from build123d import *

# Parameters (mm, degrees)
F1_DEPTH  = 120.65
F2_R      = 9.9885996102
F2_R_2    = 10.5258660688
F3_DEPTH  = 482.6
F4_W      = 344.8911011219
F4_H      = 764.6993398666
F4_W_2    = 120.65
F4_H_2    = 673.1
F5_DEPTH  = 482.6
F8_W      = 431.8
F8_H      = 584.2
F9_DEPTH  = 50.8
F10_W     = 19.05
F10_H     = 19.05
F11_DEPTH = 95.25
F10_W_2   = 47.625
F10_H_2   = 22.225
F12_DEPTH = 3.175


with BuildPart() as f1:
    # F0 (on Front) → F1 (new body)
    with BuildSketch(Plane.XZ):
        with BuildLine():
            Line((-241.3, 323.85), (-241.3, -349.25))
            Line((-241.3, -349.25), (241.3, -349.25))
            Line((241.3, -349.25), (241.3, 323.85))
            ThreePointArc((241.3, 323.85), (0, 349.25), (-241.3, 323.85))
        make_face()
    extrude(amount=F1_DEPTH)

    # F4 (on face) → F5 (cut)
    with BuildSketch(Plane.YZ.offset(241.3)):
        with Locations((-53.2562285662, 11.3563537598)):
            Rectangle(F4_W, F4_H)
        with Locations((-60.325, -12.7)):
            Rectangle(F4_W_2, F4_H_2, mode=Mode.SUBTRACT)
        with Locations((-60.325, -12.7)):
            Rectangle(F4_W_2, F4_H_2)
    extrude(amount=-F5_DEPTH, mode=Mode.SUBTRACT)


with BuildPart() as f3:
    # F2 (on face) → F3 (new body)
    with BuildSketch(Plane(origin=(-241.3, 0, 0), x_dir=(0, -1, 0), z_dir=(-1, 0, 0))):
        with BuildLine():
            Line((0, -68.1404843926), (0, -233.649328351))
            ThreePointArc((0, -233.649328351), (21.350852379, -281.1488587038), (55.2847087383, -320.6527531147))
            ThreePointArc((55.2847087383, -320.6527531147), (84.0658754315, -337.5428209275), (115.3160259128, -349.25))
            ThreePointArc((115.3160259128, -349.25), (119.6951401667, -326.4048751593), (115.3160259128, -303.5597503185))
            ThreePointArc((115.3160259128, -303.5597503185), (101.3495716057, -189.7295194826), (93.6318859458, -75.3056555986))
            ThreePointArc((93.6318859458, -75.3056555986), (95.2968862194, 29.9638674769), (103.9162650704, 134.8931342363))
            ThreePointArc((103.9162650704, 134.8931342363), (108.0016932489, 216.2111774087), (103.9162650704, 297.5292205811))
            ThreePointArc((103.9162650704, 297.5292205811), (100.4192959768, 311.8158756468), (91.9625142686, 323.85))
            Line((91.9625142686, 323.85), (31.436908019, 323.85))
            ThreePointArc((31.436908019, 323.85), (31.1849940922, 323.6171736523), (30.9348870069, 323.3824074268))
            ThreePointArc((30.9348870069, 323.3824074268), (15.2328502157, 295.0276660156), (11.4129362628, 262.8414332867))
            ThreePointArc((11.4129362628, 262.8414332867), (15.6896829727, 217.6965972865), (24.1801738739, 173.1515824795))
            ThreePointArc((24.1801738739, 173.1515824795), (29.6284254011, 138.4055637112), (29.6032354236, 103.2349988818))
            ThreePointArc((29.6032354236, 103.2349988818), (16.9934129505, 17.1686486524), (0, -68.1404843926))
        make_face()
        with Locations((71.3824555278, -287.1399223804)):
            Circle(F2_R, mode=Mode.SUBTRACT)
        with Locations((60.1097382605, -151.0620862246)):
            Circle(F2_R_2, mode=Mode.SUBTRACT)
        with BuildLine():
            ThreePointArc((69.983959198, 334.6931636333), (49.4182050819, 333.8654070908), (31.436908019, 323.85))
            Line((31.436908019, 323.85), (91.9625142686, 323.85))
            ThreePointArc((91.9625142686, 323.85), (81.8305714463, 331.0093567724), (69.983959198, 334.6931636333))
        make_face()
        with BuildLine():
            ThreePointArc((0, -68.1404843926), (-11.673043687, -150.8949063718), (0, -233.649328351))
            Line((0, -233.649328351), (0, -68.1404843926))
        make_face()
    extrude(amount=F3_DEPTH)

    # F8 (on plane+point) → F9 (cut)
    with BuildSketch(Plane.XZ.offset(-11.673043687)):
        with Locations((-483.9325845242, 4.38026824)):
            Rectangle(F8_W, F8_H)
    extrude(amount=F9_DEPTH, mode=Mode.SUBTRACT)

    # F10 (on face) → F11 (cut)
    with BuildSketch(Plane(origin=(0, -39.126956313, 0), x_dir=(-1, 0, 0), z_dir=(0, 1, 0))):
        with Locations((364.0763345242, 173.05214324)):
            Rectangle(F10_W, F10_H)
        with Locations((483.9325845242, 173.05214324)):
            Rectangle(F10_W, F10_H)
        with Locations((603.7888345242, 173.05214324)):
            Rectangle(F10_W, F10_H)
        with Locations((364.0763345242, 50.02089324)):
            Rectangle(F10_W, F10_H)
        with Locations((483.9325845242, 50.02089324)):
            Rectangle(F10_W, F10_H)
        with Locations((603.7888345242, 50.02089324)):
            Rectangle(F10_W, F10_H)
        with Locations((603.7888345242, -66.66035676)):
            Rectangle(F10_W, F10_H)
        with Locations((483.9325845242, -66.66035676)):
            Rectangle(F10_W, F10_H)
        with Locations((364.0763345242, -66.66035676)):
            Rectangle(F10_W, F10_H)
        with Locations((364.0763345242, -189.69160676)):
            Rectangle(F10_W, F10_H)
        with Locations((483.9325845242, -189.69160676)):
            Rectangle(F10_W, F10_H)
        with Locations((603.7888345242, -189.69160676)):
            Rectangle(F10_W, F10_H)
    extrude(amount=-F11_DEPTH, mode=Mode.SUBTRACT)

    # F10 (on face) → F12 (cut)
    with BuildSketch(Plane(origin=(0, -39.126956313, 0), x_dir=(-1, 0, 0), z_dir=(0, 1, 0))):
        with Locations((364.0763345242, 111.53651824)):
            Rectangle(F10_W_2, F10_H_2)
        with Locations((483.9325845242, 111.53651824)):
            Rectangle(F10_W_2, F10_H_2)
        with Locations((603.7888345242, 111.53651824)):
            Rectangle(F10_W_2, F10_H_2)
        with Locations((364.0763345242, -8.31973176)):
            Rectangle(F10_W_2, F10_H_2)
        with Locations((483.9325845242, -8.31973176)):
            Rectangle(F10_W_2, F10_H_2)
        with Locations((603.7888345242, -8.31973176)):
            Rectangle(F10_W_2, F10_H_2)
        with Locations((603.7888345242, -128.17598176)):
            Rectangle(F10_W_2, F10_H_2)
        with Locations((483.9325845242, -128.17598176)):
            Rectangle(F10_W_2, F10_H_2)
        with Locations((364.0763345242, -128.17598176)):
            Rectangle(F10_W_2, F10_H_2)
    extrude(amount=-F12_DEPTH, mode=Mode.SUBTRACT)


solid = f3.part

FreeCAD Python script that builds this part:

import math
import FreeCAD as App
import Part
import Sketcher
Q = App.Units.Quantity

doc = App.newDocument("Part")
body = doc.addObject("PartDesign::Body", "Body")

# Sketch on XZ plane
sketch1 = doc.addObject("Sketcher::SketchObject", "Sketch")
body.addObject(sketch1)
sketch1.AttachmentSupport = (doc.XZ_Plane, [""])
sketch1.MapMode = "FlatFace"
sketch1.addGeometry(Part.LineSegment(App.Vector(-241.3, 323.85, 0), App.Vector(-241.3, -349.25, 0)), False)
sketch1.addGeometry(Part.LineSegment(App.Vector(-241.3, -349.25, 0), App.Vector(241.3, -349.25, 0)), False)
sketch1.addGeometry(Part.LineSegment(App.Vector(241.3, -349.25, 0), App.Vector(241.3, 323.85, 0)), False)
sketch1.addGeometry(Part.ArcOfCircle(Part.Circle(App.Vector(0, -809.625, 0), App.Vector(0, 0, 1), 1158.875), math.radians(77.981988), math.radians(102.018012)), False)
sketch1.addConstraint(Sketcher.Constraint("Coincident", 0, 2, 1, 1))
sketch1.addConstraint(Sketcher.Constraint("Coincident", 1, 2, 2, 1))
sketch1.addConstraint(Sketcher.Constraint("Coincident", 2, 2, 3, 1))
sketch1.addConstraint(Sketcher.Constraint("Coincident", 3, 2, 0, 1))
sketch1.addConstraint(Sketcher.Constraint("Vertical", 0))
sketch1.addConstraint(Sketcher.Constraint("Horizontal", 1))
sketch1.addConstraint(Sketcher.Constraint("Vertical", 2))
sketch1.addConstraint(Sketcher.Constraint("PointOnObject", 3, 3, -2))
sketch1.addConstraint(Sketcher.Constraint("Equal", 0, 2))
sketch1.addConstraint(Sketcher.Constraint("DistanceX", 1, 1, 1, 2, Q("19 in")))
sketch1.addConstraint(Sketcher.Constraint("DistanceY", 0, 2, 0, 1, Q("26.5 in")))
sketch1.addConstraint(Sketcher.Constraint("Radius", 3, Q("45.625 in")))
sketch1.addConstraint(Sketcher.Constraint("DistanceY", 0, 2, -1, 1, Q("13.75 in")))
pad1 = doc.addObject("PartDesign::Pad", "Pad")
body.addObject(pad1)
pad1.Profile = sketch1
pad1.Length = Q("4.75 in")

# Sketch on YZ plane
sketch2 = doc.addObject("Sketcher::SketchObject", "Sketch001")
body.addObject(sketch2)
sketch2.AttachmentSupport = (doc.YZ_Plane, [""])
sketch2.MapMode = "FlatFace"
sketch2.AttachmentOffset = App.Placement(App.Vector(0, 0, 9.5 * 25.4), App.Rotation())
sketch2.addGeometry(Part.LineSegment(App.Vector(-225.701779, 393.706024, 0), App.Vector(-225.701779, -370.993316, 0)), False)
sketch2.addGeometry(Part.LineSegment(App.Vector(-225.701779, -370.993316, 0), App.Vector(119.189322, -370.993316, 0)), False)
sketch2.addGeometry(Part.LineSegment(App.Vector(119.189322, -370.993316, 0), App.Vector(119.189322, 393.706024, 0)), False)
sketch2.addGeometry(Part.LineSegment(App.Vector(119.189322, 393.706024, 0), App.Vector(-225.701779, 393.706024, 0)), False)
sketch2.addConstraint(Sketcher.Constraint("Coincident", 0, 2, 1, 1))
sketch2.addConstraint(Sketcher.Constraint("Coincident", 1, 2, 2, 1))
sketch2.addConstraint(Sketcher.Constraint("Coincident", 2, 2, 3, 1))
sketch2.addConstraint(Sketcher.Constraint("Coincident", 3, 2, 0, 1))
sketch2.addConstraint(Sketcher.Constraint("Vertical", 0))
sketch2.addConstraint(Sketcher.Constraint("Horizontal", 1))
sketch2.addConstraint(Sketcher.Constraint("Vertical", 2))
sketch2.addConstraint(Sketcher.Constraint("Horizontal", 3))
sketch2.addConstraint(Sketcher.Constraint("DistanceX", 1, 1, 1, 2, Q("344.891101 mm")))
sketch2.addConstraint(Sketcher.Constraint("DistanceY", 0, 2, 0, 1, Q("764.69934 mm")))
sketch2.addConstraint(Sketcher.Constraint("DistanceX", 0, 2, -1, 1, Q("225.701779 mm")))
sketch2.addConstraint(Sketcher.Constraint("DistanceY", 0, 2, -1, 1, Q("370.993316 mm")))
pocket1 = doc.addObject("PartDesign::Pocket", "Pocket")
body.addObject(pocket1)
pocket1.Profile = sketch2
pocket1.Length = Q("19 in")
body2 = doc.addObject("PartDesign::Body", "Body001")

# Sketch on YZ plane
sketch3 = doc.addObject("Sketcher::SketchObject", "Sketch002")
body2.addObject(sketch3)
sketch3.AttachmentSupport = (doc.getObject("YZ_Plane001"), [""])
sketch3.MapMode = "FlatFace"
sketch3.AttachmentOffset = App.Placement(App.Vector(0, 0, -9.5 * 25.4), App.Rotation())
sketch3.addGeometry(Part.ArcOfCircle(Part.Circle(App.Vector(1659.073973, 306.69091, 0), App.Vector(0, 0, 1), 1700.88948), math.radians(-173.12998), math.radians(-167.269014)), False)
sketch3.addGeometry(Part.ArcOfCircle(Part.Circle(App.Vector(-287.501469, -150.894906, 0), App.Vector(0, 0, 1), 299.174512), math.radians(-16.057935), math.radians(16.057935)), False)
sketch3.addGeometry(Part.ArcOfCircle(Part.Circle(App.Vector(-174.889863, -183.585349, 0), App.Vector(0, 0, 1), 181.914447), math.radians(-48.892017), math.radians(-15.974301)), False)
sketch3.addGeometry(Part.ArcOfCircle(Part.Circle(App.Vector(-167.490726, -162.417444, 0), App.Vector(0, 0, 1), 193.980935), math.radians(-74.397123), math.radians(-54.659219)), False)
sketch3.addGeometry(Part.ArcOfCircle(Part.Circle(App.Vector(-57.915938, -326.404875, 0), App.Vector(0, 0, 1), 61.779202), math.radians(158.297539), math.radians(201.702461)), False)
sketch3.addGeometry(Part.ArcOfCircle(Part.Circle(App.Vector(-2187.319697, 8.437651, 0), App.Vector(0, 0, 1), 2095.361923), math.radians(-8.56313), math.radians(-2.290495)), False)
sketch3.addGeometry(Part.ArcOfCircle(Part.Circle(App.Vector(-1685.370469, -47.833534, 0), App.Vector(0, 0, 1), 1591.975638), math.radians(-0.988781), math.radians(6.590925)), False)
sketch3.addGeometry(Part.ArcOfCircle(Part.Circle(App.Vector(703.334913, 216.211177, 0), App.Vector(0, 0, 1), 811.336606), math.radians(174.247743), math.radians(185.752257)), False)
sketch3.addGeometry(Part.ArcOfCircle(Part.Circle(App.Vector(-64.259504, 295.393674, 0), App.Vector(0, 0, 1), 39.71422), math.radians(98.287551), math.radians(176.917556)), False)
sketch3.addGeometry(Part.ArcOfCircle(Part.Circle(App.Vector(-61.43752, 291.13718, 0), App.Vector(0, 0, 1), 44.386544), math.radians(47.476364), math.radians(101.101387)), False)
sketch3.addGeometry(Part.ArcOfCircle(Part.Circle(App.Vector(-61.437519, 291.137181, 0), App.Vector(0, 0, 1), 44.386543), math.radians(46.590774), math.radians(47.476364)), False)
sketch3.addGeometry(Part.ArcOfCircle(Part.Circle(App.Vector(-95.319432, 269.203068, 0), App.Vector(0, 0, 1), 84.147313), math.radians(-4.335765), math.radians(40.080478)), False)
sketch3.addGeometry(Part.ArcOfCircle(Part.Circle(App.Vector(-494.006864, 285.784447, 0), App.Vector(0, 0, 1), 483.138988), math.radians(-13.481256), math.radians(-2.721851)), False)
sketch3.addGeometry(Part.ArcOfCircle(Part.Circle(App.Vector(195.014846, 120.981167, 0), App.Vector(0, 0, 1), 225.318018), math.radians(166.612171), math.radians(184.517325)), False)
sketch3.addGeometry(Part.Circle(App.Vector(-71.382456, -287.139922, 0), App.Vector(0, 0, 1), 9.9886), False)
sketch3.addGeometry(Part.Circle(App.Vector(-60.109738, -151.062086, 0), App.Vector(0, 0, 1), 10.525866), False)
sketch3.addConstraint(Sketcher.Constraint("Coincident", 0, 2, 1, 2))
sketch3.addConstraint(Sketcher.Constraint("Coincident", 1, 1, 2, 2))
sketch3.addConstraint(Sketcher.Constraint("Coincident", 2, 1, 3, 2))
sketch3.addConstraint(Sketcher.Constraint("Coincident", 3, 1, 4, 2))
sketch3.addConstraint(Sketcher.Constraint("Coincident", 4, 1, 5, 1))
sketch3.addConstraint(Sketcher.Constraint("Coincident", 5, 2, 6, 1))
sketch3.addConstraint(Sketcher.Constraint("Coincident", 6, 2, 7, 2))
sketch3.addConstraint(Sketcher.Constraint("Coincident", 7, 1, 8, 2))
sketch3.addConstraint(Sketcher.Constraint("Coincident", 8, 1, 9, 2))
sketch3.addConstraint(Sketcher.Constraint("Tangent", 9, 1, 10, 2))
sketch3.addConstraint(Sketcher.Constraint("Coincident", 10, 1, 11, 2))
sketch3.addConstraint(Sketcher.Constraint("Coincident", 11, 1, 12, 2))
sketch3.addConstraint(Sketcher.Constraint("Coincident", 12, 1, 13, 1))
sketch3.addConstraint(Sketcher.Constraint("Coincident", 13, 2, 0, 1))
sketch3.addConstraint(Sketcher.Constraint("Equal", 9, 10))
sketch3.addConstraint(Sketcher.Constraint("PointOnObject", 0, 2, -2))
sketch3.addConstraint(Sketcher.Constraint("PointOnObject", 1, 1, -2))
sketch3.addConstraint(Sketcher.Constraint("Vertical", 3, 1, 4, 1))
sketch3.addConstraint(Sketcher.Constraint("Vertical", 6, 2, 7, 1))
sketch3.addConstraint(Sketcher.Constraint("Diameter", 14, Q("19.977199 mm")))
sketch3.addConstraint(Sketcher.Constraint("DistanceY", 3, 1, -1, 1, Q("13.75 in")))
sketch3.addConstraint(Sketcher.Constraint("DistanceY", -1, 1, 9, 1, Q("12.75 in")))
sketch3.addConstraint(Sketcher.Constraint("Radius", 0, Q("1700.88948 mm")))
sketch3.addConstraint(Sketcher.Constraint("Radius", 6, Q("1591.975638 mm")))
sketch3.addConstraint(Sketcher.Constraint("Radius", 8, Q("39.71422 mm")))
sketch3.addConstraint(Sketcher.Constraint("Diameter", 15, Q("21.051732 mm")))
sketch3.addConstraint(Sketcher.Constraint("DistanceX", 9, 3, -1, 1, Q("2.4188 in")))
sketch3.addConstraint(Sketcher.Constraint("Radius", 1, Q("299.174512 mm")))
sketch3.addConstraint(Sketcher.Constraint("Radius", 2, Q("181.914447 mm")))
sketch3.addConstraint(Sketcher.Constraint("Radius", 3, Q("193.980935 mm")))
sketch3.addConstraint(Sketcher.Constraint("Radius", 4, Q("61.779202 mm")))
sketch3.addConstraint(Sketcher.Constraint("Radius", 5, Q("2095.361923 mm")))
sketch3.addConstraint(Sketcher.Constraint("Radius", 7, Q("811.336606 mm")))
sketch3.addConstraint(Sketcher.Constraint("Radius", 9, Q("44.386544 mm")))
sketch3.addConstraint(Sketcher.Constraint("Radius", 11, Q("84.147313 mm")))
sketch3.addConstraint(Sketcher.Constraint("Radius", 12, Q("483.138988 mm")))
sketch3.addConstraint(Sketcher.Constraint("Radius", 13, Q("225.318018 mm")))
sketch3.addConstraint(Sketcher.Constraint("DistanceY", -1, 1, 13, 2, Q("103.234999 mm")))
sketch3.addConstraint(Sketcher.Constraint("DistanceX", 3, 3, 0, 3, Q("1826.564699 mm")))
sketch3.addConstraint(Sketcher.Constraint("DistanceY", 2, 3, 5, 3, Q("192.023 mm")))
sketch3.addConstraint(Sketcher.Constraint("DistanceX", 6, 3, 1, 3, Q("1397.869 mm")))
sketch3.addConstraint(Sketcher.Constraint("DistanceY", 13, 3, 11, 3, Q("148.221901 mm")))
sketch3.addConstraint(Sketcher.Constraint("DistanceX", 14, 3, 13, 3, Q("266.397302 mm")))
sketch3.addConstraint(Sketcher.Constraint("DistanceX", 15, 3, 4, 3, Q("2.1938 mm")))
sketch3.addConstraint(Sketcher.Constraint("DistanceY", 4, 1, 2, 3, Q("119.974401 mm")))
sketch3.addConstraint(Sketcher.Constraint("DistanceY", 12, 1, 10, 3, Q("117.985599 mm")))
sketch3.addConstraint(Sketcher.Constraint("DistanceX", 13, 2, 11, 1, Q("18.190299 mm")))
sketch3.addConstraint(Sketcher.Constraint("DistanceY", -1, 1, 0, 3, Q("306.69091 mm")))
sketch3.addConstraint(Sketcher.Constraint("DistanceX", 1, 3, -1, 1, Q("287.501469 mm")))
sketch3.addConstraint(Sketcher.Constraint("DistanceY", 2, 3, -1, 1, Q("183.585349 mm")))
sketch3.addConstraint(Sketcher.Constraint("DistanceY", -1, 1, 9, 3, Q("291.13718 mm")))
sketch3.addConstraint(Sketcher.Constraint("DistanceX", 11, 3, -1, 1, Q("95.319432 mm")))
sketch3.addConstraint(Sketcher.Constraint("DistanceY", -1, 1, 11, 3, Q("269.203068 mm")))
sketch3.addConstraint(Sketcher.Constraint("DistanceX", 15, 3, -1, 1, Q("60.109738 mm")))
sketch3.addConstraint(Sketcher.Constraint("DistanceY", 1, 1, -1, 1, Q("233.649328 mm")))
sketch3.addConstraint(Sketcher.Constraint("DistanceY", -1, 1, 7, 1, Q("297.529221 mm")))
sketch3.addConstraint(Sketcher.Constraint("DistanceX", 8, 1, -1, 1, Q("69.983959 mm")))
sketch3.addConstraint(Sketcher.Constraint("DistanceY", 3, 3, 6, 3, Q("114.58391 mm")))
sketch3.addConstraint(Sketcher.Constraint("DistanceX", 4, 3, 7, 3, Q("761.250851 mm")))
sketch3.addConstraint(Sketcher.Constraint("DistanceY", 14, 3, 3, 3, Q("124.722478 mm")))
sketch3.addConstraint(Sketcher.Constraint("DistanceY", 4, 3, 15, 3, Q("175.342789 mm")))
pad2 = doc.addObject("PartDesign::Pad", "Pad001")
body2.addObject(pad2)
pad2.Profile = sketch3
pad2.Length = Q("19 in")
pad2.Reversed = True

# Sketch on XZ plane
sketch4 = doc.addObject("Sketcher::SketchObject", "Sketch003")
body2.addObject(sketch4)
sketch4.AttachmentSupport = (doc.getObject("XZ_Plane001"), [""])
sketch4.MapMode = "FlatFace"
sketch4.AttachmentOffset = App.Placement(App.Vector(0, 0, -11.673044), App.Rotation())
sketch4.addGeometry(Part.LineSegment(App.Vector(-699.832585, 296.480268, 0), App.Vector(-699.832585, -287.719732, 0)), False)
sketch4.addGeometry(Part.LineSegment(App.Vector(-699.832585, -287.719732, 0), App.Vector(-268.032585, -287.719732, 0)), False)
sketch4.addGeometry(Part.LineSegment(App.Vector(-268.032585, -287.719732, 0), App.Vector(-268.032585, 296.480268, 0)), False)
sketch4.addGeometry(Part.LineSegment(App.Vector(-268.032585, 296.480268, 0), App.Vector(-699.832585, 296.480268, 0)), False)
sketch4.addConstraint(Sketcher.Constraint("Coincident", 0, 2, 1, 1))
sketch4.addConstraint(Sketcher.Constraint("Coincident", 1, 2, 2, 1))
sketch4.addConstraint(Sketcher.Constraint("Coincident", 2, 2, 3, 1))
sketch4.addConstraint(Sketcher.Constraint("Coincident", 3, 2, 0, 1))
sketch4.addConstraint(Sketcher.Constraint("Vertical", 0))
sketch4.addConstraint(Sketcher.Constraint("Horizontal", 1))
sketch4.addConstraint(Sketcher.Constraint("Vertical", 2))
sketch4.addConstraint(Sketcher.Constraint("Horizontal", 3))
sketch4.addConstraint(Sketcher.Constraint("DistanceX", 1, 1, 1, 2, Q("17 in")))
sketch4.addConstraint(Sketcher.Constraint("DistanceY", 0, 2, 0, 1, Q("23 in")))
sketch4.addConstraint(Sketcher.Constraint("DistanceY", 0, 2, -1, 1, Q("287.719732 mm")))
sketch4.addConstraint(Sketcher.Constraint("DistanceX", 0, 2, -1, 1, Q("699.832585 mm")))
pocket2 = doc.addObject("PartDesign::Pocket", "Pocket001")
body2.addObject(pocket2)
pocket2.Profile = sketch4
pocket2.Length = Q("2 in")
pocket2.Reversed = True

# Sketch on XZ plane
sketch5 = doc.addObject("Sketcher::SketchObject", "Sketch004")
body2.addObject(sketch5)
sketch5.AttachmentSupport = (doc.getObject("XZ_Plane001"), [""])
sketch5.MapMode = "FlatFace"
sketch5.AttachmentOffset = App.Placement(App.Vector(0, 0, 39.126956), App.Rotation())
sketch5.addGeometry(Part.LineSegment(App.Vector(-354.551335, 182.577143, 0), App.Vector(-354.551335, 163.527143, 0)), False)
sketch5.addGeometry(Part.LineSegment(App.Vector(-354.551335, 163.527143, 0), App.Vector(-373.601335, 163.527143, 0)), False)
sketch5.addGeometry(Part.LineSegment(App.Vector(-373.601335, 163.527143, 0), App.Vector(-373.601335, 182.577143, 0)), False)
sketch5.addGeometry(Part.LineSegment(App.Vector(-373.601335, 182.577143, 0), App.Vector(-354.551335, 182.577143, 0)), False)
sketch5.addGeometry(Part.LineSegment(App.Vector(-474.407585, 182.577143, 0), App.Vector(-474.407585, 163.527143, 0)), False)
sketch5.addGeometry(Part.LineSegment(App.Vector(-474.407585, 163.527143, 0), App.Vector(-493.457585, 163.527143, 0)), False)
sketch5.addGeometry(Part.LineSegment(App.Vector(-493.457585, 163.527143, 0), App.Vector(-493.457585, 182.577143, 0)), False)
sketch5.addGeometry(Part.LineSegment(App.Vector(-493.457585, 182.577143, 0), App.Vector(-474.407585, 182.577143, 0)), False)
sketch5.addGeometry(Part.LineSegment(App.Vector(-594.263835, 182.577143, 0), App.Vector(-594.263835, 163.527143, 0)), False)
sketch5.addGeometry(Part.LineSegment(App.Vector(-594.263835, 163.527143, 0), App.Vector(-613.313835, 163.527143, 0)), False)
sketch5.addGeometry(Part.LineSegment(App.Vector(-613.313835, 163.527143, 0), App.Vector(-613.313835, 182.577143, 0)), False)
sketch5.addGeometry(Part.LineSegment(App.Vector(-613.313835, 182.577143, 0), App.Vector(-594.263835, 182.577143, 0)), False)
sketch5.addGeometry(Part.LineSegment(App.Vector(-354.551335, 59.545893, 0), App.Vector(-354.551335, 40.495893, 0)), False)
sketch5.addGeometry(Part.LineSegment(App.Vector(-354.551335, 40.495893, 0), App.Vector(-373.601335, 40.495893, 0)), False)
sketch5.addGeometry(Part.LineSegment(App.Vector(-373.601335, 40.495893, 0), App.Vector(-373.601335, 59.545893, 0)), False)
sketch5.addGeometry(Part.LineSegment(App.Vector(-373.601335, 59.545893, 0), App.Vector(-354.551335, 59.545893, 0)), False)
sketch5.addGeometry(Part.LineSegment(App.Vector(-474.407585, 59.545893, 0), App.Vector(-474.407585, 40.495893, 0)), False)
sketch5.addGeometry(Part.LineSegment(App.Vector(-474.407585, 40.495893, 0), App.Vector(-493.457585, 40.495893, 0)), False)
sketch5.addGeometry(Part.LineSegment(App.Vector(-493.457585, 40.495893, 0), App.Vector(-493.457585, 59.545893, 0)), False)
sketch5.addGeometry(Part.LineSegment(App.Vector(-493.457585, 59.545893, 0), App.Vector(-474.407585, 59.545893, 0)), False)
sketch5.addGeometry(Part.LineSegment(App.Vector(-594.263835, 59.545893, 0), App.Vector(-594.263835, 40.495893, 0)), False)
sketch5.addGeometry(Part.LineSegment(App.Vector(-594.263835, 40.495893, 0), App.Vector(-613.313835, 40.495893, 0)), False)
sketch5.addGeometry(Part.LineSegment(App.Vector(-613.313835, 40.495893, 0), App.Vector(-613.313835, 59.545893, 0)), False)
sketch5.addGeometry(Part.LineSegment(App.Vector(-613.313835, 59.545893, 0), App.Vector(-594.263835, 59.545893, 0)), False)
sketch5.addGeometry(Part.LineSegment(App.Vector(-594.263835, -57.135357, 0), App.Vector(-594.263835, -76.185357, 0)), False)
sketch5.addGeometry(Part.LineSegment(App.Vector(-594.263835, -76.185357, 0), App.Vector(-613.313835, -76.185357, 0)), False)
sketch5.addGeometry(Part.LineSegment(App.Vector(-613.313835, -76.185357, 0), App.Vector(-613.313835, -57.135357, 0)), False)
sketch5.addGeometry(Part.LineSegment(App.Vector(-613.313835, -57.135357, 0), App.Vector(-594.263835, -57.135357, 0)), False)
sketch5.addGeometry(Part.LineSegment(App.Vector(-474.407585, -57.135357, 0), App.Vector(-474.407585, -76.185357, 0)), False)
sketch5.addGeometry(Part.LineSegment(App.Vector(-474.407585, -76.185357, 0), App.Vector(-493.457585, -76.185357, 0)), False)
sketch5.addGeometry(Part.LineSegment(App.Vector(-493.457585, -76.185357, 0), App.Vector(-493.457585, -57.135357, 0)), False)
sketch5.addGeometry(Part.LineSegment(App.Vector(-493.457585, -57.135357, 0), App.Vector(-474.407585, -57.135357, 0)), False)
sketch5.addGeometry(Part.LineSegment(App.Vector(-354.551335, -57.135357, 0), App.Vector(-354.551335, -76.185357, 0)), False)
sketch5.addGeometry(Part.LineSegment(App.Vector(-354.551335, -76.185357, 0), App.Vector(-373.601335, -76.185357, 0)), False)
sketch5.addGeometry(Part.LineSegment(App.Vector(-373.601335, -76.185357, 0), App.Vector(-373.601335, -57.135357, 0)), False)
sketch5.addGeometry(Part.LineSegment(App.Vector(-373.601335, -57.135357, 0), App.Vector(-354.551335, -57.135357, 0)), False)
sketch5.addGeometry(Part.LineSegment(App.Vector(-354.551335, -180.166607, 0), App.Vector(-354.551335, -199.216607, 0)), False)
sketch5.addGeometry(Part.LineSegment(App.Vector(-354.551335, -199.216607, 0), App.Vector(-373.601335, -199.216607, 0)), False)
sketch5.addGeometry(Part.LineSegment(App.Vector(-373.601335, -199.216607, 0), App.Vector(-373.601335, -180.166607, 0)), False)
sketch5.addGeometry(Part.LineSegment(App.Vector(-373.601335, -180.166607, 0), App.Vector(-354.551335, -180.166607, 0)), False)
sketch5.addGeometry(Part.LineSegment(App.Vector(-474.407585, -180.166607, 0), App.Vector(-474.407585, -199.216607, 0)), False)
sketch5.addGeometry(Part.LineSegment(App.Vector(-474.407585, -199.216607, 0), App.Vector(-493.457585, -199.216607, 0)), False)
sketch5.addGeometry(Part.LineSegment(App.Vector(-493.457585, -199.216607, 0), App.Vector(-493.457585, -180.166607, 0)), False)
sketch5.addGeometry(Part.LineSegment(App.Vector(-493.457585, -180.166607, 0), App.Vector(-474.407585, -180.166607, 0)), False)
sketch5.addGeometry(Part.LineSegment(App.Vector(-594.263835, -180.166607, 0), App.Vector(-594.263835, -199.216607, 0)), False)
sketch5.addGeometry(Part.LineSegment(App.Vector(-594.263835, -199.216607, 0), App.Vector(-613.313835, -199.216607, 0)), False)
sketch5.addGeometry(Part.LineSegment(App.Vector(-613.313835, -199.216607, 0), App.Vector(-613.313835, -180.166607, 0)), False)
sketch5.addGeometry(Part.LineSegment(App.Vector(-613.313835, -180.166607, 0), App.Vector(-594.263835, -180.166607, 0)), False)
sketch5.addConstraint(Sketcher.Constraint("Coincident", 0, 2, 1, 1))
sketch5.addConstraint(Sketcher.Constraint("Coincident", 1, 2, 2, 1))
sketch5.addConstraint(Sketcher.Constraint("Coincident", 2, 2, 3, 1))
sketch5.addConstraint(Sketcher.Constraint("Coincident", 3, 2, 0, 1))
sketch5.addConstraint(Sketcher.Constraint("Coincident", 4, 2, 5, 1))
sketch5.addConstraint(Sketcher.Constraint("Coincident", 5, 2, 6, 1))
sketch5.addConstraint(Sketcher.Constraint("Coincident", 6, 2, 7, 1))
sketch5.addConstraint(Sketcher.Constraint("Coincident", 7, 2, 4, 1))
sketch5.addConstraint(Sketcher.Constraint("Coincident", 8, 2, 9, 1))
sketch5.addConstraint(Sketcher.Constraint("Coincident", 9, 2, 10, 1))
sketch5.addConstraint(Sketcher.Constraint("Coincident", 10, 2, 11, 1))
sketch5.addConstraint(Sketcher.Constraint("Coincident", 11, 2, 8, 1))
sketch5.addConstraint(Sketcher.Constraint("Coincident", 12, 2, 13, 1))
sketch5.addConstraint(Sketcher.Constraint("Coincident", 13, 2, 14, 1))
sketch5.addConstraint(Sketcher.Constraint("Coincident", 14, 2, 15, 1))
sketch5.addConstraint(Sketcher.Constraint("Coincident", 15, 2, 12, 1))
sketch5.addConstraint(Sketcher.Constraint("Coincident", 16, 2, 17, 1))
sketch5.addConstraint(Sketcher.Constraint("Coincident", 17, 2, 18, 1))
sketch5.addConstraint(Sketcher.Constraint("Coincident", 18, 2, 19, 1))
sketch5.addConstraint(Sketcher.Constraint("Coincident", 19, 2, 16, 1))
sketch5.addConstraint(Sketcher.Constraint("Coincident", 20, 2, 21, 1))
sketch5.addConstraint(Sketcher.Constraint("Coincident", 21, 2, 22, 1))
sketch5.addConstraint(Sketcher.Constraint("Coincident", 22, 2, 23, 1))
sketch5.addConstraint(Sketcher.Constraint("Coincident", 23, 2, 20, 1))
sketch5.addConstraint(Sketcher.Constraint("Coincident", 24, 2, 25, 1))
sketch5.addConstraint(Sketcher.Constraint("Coincident", 25, 2, 26, 1))
sketch5.addConstraint(Sketcher.Constraint("Coincident", 26, 2, 27, 1))
sketch5.addConstraint(Sketcher.Constraint("Coincident", 27, 2, 24, 1))
sketch5.addConstraint(Sketcher.Constraint("Coincident", 28, 2, 29, 1))
sketch5.addConstraint(Sketcher.Constraint("Coincident", 29, 2, 30, 1))
sketch5.addConstraint(Sketcher.Constraint("Coincident", 30, 2, 31, 1))
sketch5.addConstraint(Sketcher.Constraint("Coincident", 31, 2, 28, 1))
sketch5.addConstraint(Sketcher.Constraint("Coincident", 32, 2, 33, 1))
sketch5.addConstraint(Sketcher.Constraint("Coincident", 33, 2, 34, 1))
sketch5.addConstraint(Sketcher.Constraint("Coincident", 34, 2, 35, 1))
sketch5.addConstraint(Sketcher.Constraint("Coincident", 35, 2, 32, 1))
sketch5.addConstraint(Sketcher.Constraint("Coincident", 36, 2, 37, 1))
sketch5.addConstraint(Sketcher.Constraint("Coincident", 37, 2, 38, 1))
sketch5.addConstraint(Sketcher.Constraint("Coincident", 38, 2, 39, 1))
sketch5.addConstraint(Sketcher.Constraint("Coincident", 39, 2, 36, 1))
sketch5.addConstraint(Sketcher.Constraint("Coincident", 40, 2, 41, 1))
sketch5.addConstraint(Sketcher.Constraint("Coincident", 41, 2, 42, 1))
sketch5.addConstraint(Sketcher.Constraint("Coincident", 42, 2, 43, 1))
sketch5.addConstraint(Sketcher.Constraint("Coincident", 43, 2, 40, 1))
sketch5.addConstraint(Sketcher.Constraint("Coincident", 44, 2, 45, 1))
sketch5.addConstraint(Sketcher.Constraint("Coincident", 45, 2, 46, 1))
sketch5.addConstraint(Sketcher.Constraint("Coincident", 46, 2, 47, 1))
sketch5.addConstraint(Sketcher.Constraint("Coincident", 47, 2, 44, 1))
sketch5.addConstraint(Sketcher.Constraint("Vertical", 0))
sketch5.addConstraint(Sketcher.Constraint("Horizontal", 1))
sketch5.addConstraint(Sketcher.Constraint("Vertical", 2))
sketch5.addConstraint(Sketcher.Constraint("Horizontal", 3))
sketch5.addConstraint(Sketcher.Constraint("Vertical", 4))
sketch5.addConstraint(Sketcher.Constraint("Horizontal", 5))
sketch5.addConstraint(Sketcher.Constraint("Vertical", 6))
sketch5.addConstraint(Sketcher.Constraint("Horizontal", 7))
sketch5.addConstraint(Sketcher.Constraint("Vertical", 8))
sketch5.addConstraint(Sketcher.Constraint("Horizontal", 9))
sketch5.addConstraint(Sketcher.Constraint("Vertical", 10))
sketch5.addConstraint(Sketcher.Constraint("Horizontal", 11))
sketch5.addConstraint(Sketcher.Constraint("Vertical", 12))
sketch5.addConstraint(Sketcher.Constraint("Horizontal", 13))
sketch5.addConstraint(Sketcher.Constraint("Vertical", 14))
sketch5.addConstraint(Sketcher.Constraint("Horizontal", 15))
sketch5.addConstraint(Sketcher.Constraint("Vertical", 16))
sketch5.addConstraint(Sketcher.Constraint("Horizontal", 17))
sketch5.addConstraint(Sketcher.Constraint("Vertical", 18))
sketch5.addConstraint(Sketcher.Constraint("Horizontal", 19))
sketch5.addConstraint(Sketcher.Constraint("Vertical", 20))
sketch5.addConstraint(Sketcher.Constraint("Horizontal", 21))
sketch5.addConstraint(Sketcher.Constraint("Vertical", 22))
sketch5.addConstraint(Sketcher.Constraint("Horizontal", 23))
sketch5.addConstraint(Sketcher.Constraint("Vertical", 24))
sketch5.addConstraint(Sketcher.Constraint("Horizontal", 25))
sketch5.addConstraint(Sketcher.Constraint("Vertical", 26))
sketch5.addConstraint(Sketcher.Constraint("Horizontal", 27))
sketch5.addConstraint(Sketcher.Constraint("Vertical", 28))
sketch5.addConstraint(Sketcher.Constraint("Horizontal", 29))
sketch5.addConstraint(Sketcher.Constraint("Vertical", 30))
sketch5.addConstraint(Sketcher.Constraint("Horizontal", 31))
sketch5.addConstraint(Sketcher.Constraint("Vertical", 32))
sketch5.addConstraint(Sketcher.Constraint("Horizontal", 33))
sketch5.addConstraint(Sketcher.Constraint("Vertical", 34))
sketch5.addConstraint(Sketcher.Constraint("Horizontal", 35))
sketch5.addConstraint(Sketcher.Constraint("Vertical", 36))
sketch5.addConstraint(Sketcher.Constraint("Horizontal", 37))
sketch5.addConstraint(Sketcher.Constraint("Vertical", 38))
sketch5.addConstraint(Sketcher.Constraint("Horizontal", 39))
sketch5.addConstraint(Sketcher.Constraint("Vertical", 40))
sketch5.addConstraint(Sketcher.Constraint("Horizontal", 41))
sketch5.addConstraint(Sketcher.Constraint("Vertical", 42))
sketch5.addConstraint(Sketcher.Constraint("Horizontal", 43))
sketch5.addConstraint(Sketcher.Constraint("Vertical", 44))
sketch5.addConstraint(Sketcher.Constraint("Horizontal", 45))
sketch5.addConstraint(Sketcher.Constraint("Vertical", 46))
sketch5.addConstraint(Sketcher.Constraint("Horizontal", 47))
sketch5.addConstraint(Sketcher.Constraint("Horizontal", 1, 2, 4, 2))
sketch5.addConstraint(Sketcher.Constraint("Horizontal", 3, 2, 6, 2))
sketch5.addConstraint(Sketcher.Constraint("Horizontal", 5, 2, 8, 2))
sketch5.addConstraint(Sketcher.Constraint("Horizontal", 7, 2, 10, 2))
sketch5.addConstraint(Sketcher.Constraint("Horizontal", 13, 2, 16, 2))
sketch5.addConstraint(Sketcher.Constraint("Horizontal", 15, 2, 18, 2))
sketch5.addConstraint(Sketcher.Constraint("Horizontal", 17, 2, 20, 2))
sketch5.addConstraint(Sketcher.Constraint("Horizontal", 19, 2, 22, 2))
sketch5.addConstraint(Sketcher.Constraint("Horizontal", 25, 2, 28, 2))
sketch5.addConstraint(Sketcher.Constraint("Horizontal", 27, 2, 30, 2))
sketch5.addConstraint(Sketcher.Constraint("Horizontal", 29, 2, 32, 2))
sketch5.addConstraint(Sketcher.Constraint("Horizontal", 31, 2, 34, 2))
sketch5.addConstraint(Sketcher.Constraint("Horizontal", 37, 2, 40, 2))
sketch5.addConstraint(Sketcher.Constraint("Horizontal", 39, 2, 42, 2))
sketch5.addConstraint(Sketcher.Constraint("Horizontal", 41, 2, 44, 2))
sketch5.addConstraint(Sketcher.Constraint("Horizontal", 43, 2, 46, 2))
sketch5.addConstraint(Sketcher.Constraint("Vertical", 3, 2, 12, 2))
sketch5.addConstraint(Sketcher.Constraint("Vertical", 2, 2, 13, 2))
sketch5.addConstraint(Sketcher.Constraint("Vertical", 7, 2, 16, 2))
sketch5.addConstraint(Sketcher.Constraint("Vertical", 6, 2, 17, 2))
sketch5.addConstraint(Sketcher.Constraint("Vertical", 11, 2, 20, 2))
sketch5.addConstraint(Sketcher.Constraint("Vertical", 10, 2, 21, 2))
sketch5.addConstraint(Sketcher.Constraint("Vertical", 23, 2, 24, 2))
sketch5.addConstraint(Sketcher.Constraint("Vertical", 22, 2, 25, 2))
sketch5.addConstraint(Sketcher.Constraint("Vertical", 19, 2, 28, 2))
sketch5.addConstraint(Sketcher.Constraint("Vertical", 18, 2, 29, 2))
sketch5.addConstraint(Sketcher.Constraint("Vertical", 15, 2, 32, 2))
sketch5.addConstraint(Sketcher.Constraint("Vertical", 14, 2, 33, 2))
sketch5.addConstraint(Sketcher.Constraint("Vertical", 35, 2, 36, 2))
sketch5.addConstraint(Sketcher.Constraint("Vertical", 34, 2, 37, 2))
sketch5.addConstraint(Sketcher.Constraint("Vertical", 31, 2, 40, 2))
sketch5.addConstraint(Sketcher.Constraint("Vertical", 30, 2, 41, 2))
sketch5.addConstraint(Sketcher.Constraint("Vertical", 27, 2, 44, 2))
sketch5.addConstraint(Sketcher.Constraint("Vertical", 26, 2, 45, 2))
sketch5.addConstraint(Sketcher.Constraint("Equal", 3, 5))
sketch5.addConstraint(Sketcher.Constraint("Equal", 7, 9))
sketch5.addConstraint(Sketcher.Constraint("Equal", 47, 0))
sketch5.addConstraint(Sketcher.Constraint("Equal", 10, 12))
sketch5.addConstraint(Sketcher.Constraint("Equal", 22, 24))
sketch5.addConstraint(Sketcher.Constraint("Equal", 34, 36))
sketch5.addConstraint(Sketcher.Constraint("DistanceX", 1, 2, 1, 1, Q("0.75 in")))
sketch5.addConstraint(Sketcher.Constraint("DistanceX", 4, 2, 1, 2, Q("3.96875 in")))
sketch5.addConstraint(Sketcher.Constraint("DistanceX", 8, 2, 5, 2, Q("3.96875 in")))
sketch5.addConstraint(Sketcher.Constraint("DistanceY", 12, 2, 0, 2, Q("4.84375 in")))
sketch5.addConstraint(Sketcher.Constraint("DistanceY", 24, 2, 20, 2, Q("4.59375 in")))
sketch5.addConstraint(Sketcher.Constraint("DistanceY", 36, 2, 32, 2, Q("4.84375 in")))
sketch5.addConstraint(Sketcher.Constraint("DistanceX", 0, 2, -1, 1, Q("354.551335 mm")))
sketch5.addConstraint(Sketcher.Constraint("DistanceY", -1, 1, 0, 2, Q("163.527143 mm")))
pocket3 = doc.addObject("PartDesign::Pocket", "Pocket002")
body2.addObject(pocket3)
pocket3.Profile = sketch5
pocket3.Length = Q("3.75 in")
pocket3.Reversed = True

# Sketch on XZ plane
sketch6 = doc.addObject("Sketcher::SketchObject", "Sketch005")
body2.addObject(sketch6)
sketch6.AttachmentSupport = (doc.getObject("XZ_Plane001"), [""])
sketch6.MapMode = "FlatFace"
sketch6.AttachmentOffset = App.Placement(App.Vector(0, 0, 39.126956), App.Rotation())
sketch6.addGeometry(Part.LineSegment(App.Vector(-340.263835, 122.649018, 0), App.Vector(-340.263835, 100.424018, 0)), False)
sketch6.addGeometry(Part.LineSegment(App.Vector(-340.263835, 100.424018, 0), App.Vector(-387.888835, 100.424018, 0)), False)
sketch6.addGeometry(Part.LineSegment(App.Vector(-387.888835, 100.424018, 0), App.Vector(-387.888835, 122.649018, 0)), False)
sketch6.addGeometry(Part.LineSegment(App.Vector(-387.888835, 122.649018, 0), App.Vector(-340.263835, 122.649018, 0)), False)
sketch6.addGeometry(Part.LineSegment(App.Vector(-460.120085, 122.649018, 0), App.Vector(-460.120085, 100.424018, 0)), False)
sketch6.addGeometry(Part.LineSegment(App.Vector(-460.120085, 100.424018, 0), App.Vector(-507.745085, 100.424018, 0)), False)
sketch6.addGeometry(Part.LineSegment(App.Vector(-507.745085, 100.424018, 0), App.Vector(-507.745085, 122.649018, 0)), False)
sketch6.addGeometry(Part.LineSegment(App.Vector(-507.745085, 122.649018, 0), App.Vector(-460.120085, 122.649018, 0)), False)
sketch6.addGeometry(Part.LineSegment(App.Vector(-579.976335, 122.649018, 0), App.Vector(-579.976335, 100.424018, 0)), False)
sketch6.addGeometry(Part.LineSegment(App.Vector(-579.976335, 100.424018, 0), App.Vector(-627.601335, 100.424018, 0)), False)
sketch6.addGeometry(Part.LineSegment(App.Vector(-627.601335, 100.424018, 0), App.Vector(-627.601335, 122.649018, 0)), False)
sketch6.addGeometry(Part.LineSegment(App.Vector(-627.601335, 122.649018, 0), App.Vector(-579.976335, 122.649018, 0)), False)
sketch6.addGeometry(Part.LineSegment(App.Vector(-340.263835, 2.792768, 0), App.Vector(-340.263835, -19.432232, 0)), False)
sketch6.addGeometry(Part.LineSegment(App.Vector(-340.263835, -19.432232, 0), App.Vector(-387.888835, -19.432232, 0)), False)
sketch6.addGeometry(Part.LineSegment(App.Vector(-387.888835, -19.432232, 0), App.Vector(-387.888835, 2.792768, 0)), False)
sketch6.addGeometry(Part.LineSegment(App.Vector(-387.888835, 2.792768, 0), App.Vector(-340.263835, 2.792768, 0)), False)
sketch6.addGeometry(Part.LineSegment(App.Vector(-460.120085, 2.792768, 0), App.Vector(-460.120085, -19.432232, 0)), False)
sketch6.addGeometry(Part.LineSegment(App.Vector(-460.120085, -19.432232, 0), App.Vector(-507.745085, -19.432232, 0)), False)
sketch6.addGeometry(Part.LineSegment(App.Vector(-507.745085, -19.432232, 0), App.Vector(-507.745085, 2.792768, 0)), False)
sketch6.addGeometry(Part.LineSegment(App.Vector(-507.745085, 2.792768, 0), App.Vector(-460.120085, 2.792768, 0)), False)
sketch6.addGeometry(Part.LineSegment(App.Vector(-579.976335, 2.792768, 0), App.Vector(-579.976335, -19.432232, 0)), False)
sketch6.addGeometry(Part.LineSegment(App.Vector(-579.976335, -19.432232, 0), App.Vector(-627.601335, -19.432232, 0)), False)
sketch6.addGeometry(Part.LineSegment(App.Vector(-627.601335, -19.432232, 0), App.Vector(-627.601335, 2.792768, 0)), False)
sketch6.addGeometry(Part.LineSegment(App.Vector(-627.601335, 2.792768, 0), App.Vector(-579.976335, 2.792768, 0)), False)
sketch6.addGeometry(Part.LineSegment(App.Vector(-579.976335, -117.063482, 0), App.Vector(-579.976335, -139.288482, 0)), False)
sketch6.addGeometry(Part.LineSegment(App.Vector(-579.976335, -139.288482, 0), App.Vector(-627.601335, -139.288482, 0)), False)
sketch6.addGeometry(Part.LineSegment(App.Vector(-627.601335, -139.288482, 0), App.Vector(-627.601335, -117.063482, 0)), False)
sketch6.addGeometry(Part.LineSegment(App.Vector(-627.601335, -117.063482, 0), App.Vector(-579.976335, -117.063482, 0)), False)
sketch6.addGeometry(Part.LineSegment(App.Vector(-460.120085, -117.063482, 0), App.Vector(-460.120085, -139.288482, 0)), False)
sketch6.addGeometry(Part.LineSegment(App.Vector(-460.120085, -139.288482, 0), App.Vector(-507.745085, -139.288482, 0)), False)
sketch6.addGeometry(Part.LineSegment(App.Vector(-507.745085, -139.288482, 0), App.Vector(-507.745085, -117.063482, 0)), False)
sketch6.addGeometry(Part.LineSegment(App.Vector(-507.745085, -117.063482, 0), App.Vector(-460.120085, -117.063482, 0)), False)
sketch6.addGeometry(Part.LineSegment(App.Vector(-340.263835, -117.063482, 0), App.Vector(-340.263835, -139.288482, 0)), False)
sketch6.addGeometry(Part.LineSegment(App.Vector(-340.263835, -139.288482, 0), App.Vector(-387.888835, -139.288482, 0)), False)
sketch6.addGeometry(Part.LineSegment(App.Vector(-387.888835, -139.288482, 0), App.Vector(-387.888835, -117.063482, 0)), False)
sketch6.addGeometry(Part.LineSegment(App.Vector(-387.888835, -117.063482, 0), App.Vector(-340.263835, -117.063482, 0)), False)
sketch6.addConstraint(Sketcher.Constraint("Coincident", 0, 2, 1, 1))
sketch6.addConstraint(Sketcher.Constraint("Coincident", 1, 2, 2, 1))
sketch6.addConstraint(Sketcher.Constraint("Coincident", 2, 2, 3, 1))
sketch6.addConstraint(Sketcher.Constraint("Coincident", 3, 2, 0, 1))
sketch6.addConstraint(Sketcher.Constraint("Coincident", 4, 2, 5, 1))
sketch6.addConstraint(Sketcher.Constraint("Coincident", 5, 2, 6, 1))
sketch6.addConstraint(Sketcher.Constraint("Coincident", 6, 2, 7, 1))
sketch6.addConstraint(Sketcher.Constraint("Coincident", 7, 2, 4, 1))
sketch6.addConstraint(Sketcher.Constraint("Coincident", 8, 2, 9, 1))
sketch6.addConstraint(Sketcher.Constraint("Coincident", 9, 2, 10, 1))
sketch6.addConstraint(Sketcher.Constraint("Coincident", 10, 2, 11, 1))
sketch6.addConstraint(Sketcher.Constraint("Coincident", 11, 2, 8, 1))
sketch6.addConstraint(Sketcher.Constraint("Coincident", 12, 2, 13, 1))
sketch6.addConstraint(Sketcher.Constraint("Coincident", 13, 2, 14, 1))
sketch6.addConstraint(Sketcher.Constraint("Coincident", 14, 2, 15, 1))
sketch6.addConstraint(Sketcher.Constraint("Coincident", 15, 2, 12, 1))
sketch6.addConstraint(Sketcher.Constraint("Coincident", 16, 2, 17, 1))
sketch6.addConstraint(Sketcher.Constraint("Coincident", 17, 2, 18, 1))
sketch6.addConstraint(Sketcher.Constraint("Coincident", 18, 2, 19, 1))
sketch6.addConstraint(Sketcher.Constraint("Coincident", 19, 2, 16, 1))
sketch6.addConstraint(Sketcher.Constraint("Coincident", 20, 2, 21, 1))
sketch6.addConstraint(Sketcher.Constraint("Coincident", 21, 2, 22, 1))
sketch6.addConstraint(Sketcher.Constraint("Coincident", 22, 2, 23, 1))
sketch6.addConstraint(Sketcher.Constraint("Coincident", 23, 2, 20, 1))
sketch6.addConstraint(Sketcher.Constraint("Coincident", 24, 2, 25, 1))
sketch6.addConstraint(Sketcher.Constraint("Coincident", 25, 2, 26, 1))
sketch6.addConstraint(Sketcher.Constraint("Coincident", 26, 2, 27, 1))
sketch6.addConstraint(Sketcher.Constraint("Coincident", 27, 2, 24, 1))
sketch6.addConstraint(Sketcher.Constraint("Coincident", 28, 2, 29, 1))
sketch6.addConstraint(Sketcher.Constraint("Coincident", 29, 2, 30, 1))
sketch6.addConstraint(Sketcher.Constraint("Coincident", 30, 2, 31, 1))
sketch6.addConstraint(Sketcher.Constraint("Coincident", 31, 2, 28, 1))
sketch6.addConstraint(Sketcher.Constraint("Coincident", 32, 2, 33, 1))
sketch6.addConstraint(Sketcher.Constraint("Coincident", 33, 2, 34, 1))
sketch6.addConstraint(Sketcher.Constraint("Coincident", 34, 2, 35, 1))
sketch6.addConstraint(Sketcher.Constraint("Coincident", 35, 2, 32, 1))
sketch6.addConstraint(Sketcher.Constraint("Vertical", 0))
sketch6.addConstraint(Sketcher.Constraint("Horizontal", 1))
sketch6.addConstraint(Sketcher.Constraint("Vertical", 2))
sketch6.addConstraint(Sketcher.Constraint("Horizontal", 3))
sketch6.addConstraint(Sketcher.Constraint("Vertical", 4))
sketch6.addConstraint(Sketcher.Constraint("Horizontal", 5))
sketch6.addConstraint(Sketcher.Constraint("Vertical", 6))
sketch6.addConstraint(Sketcher.Constraint("Horizontal", 7))
sketch6.addConstraint(Sketcher.Constraint("Vertical", 8))
sketch6.addConstraint(Sketcher.Constraint("Horizontal", 9))
sketch6.addConstraint(Sketcher.Constraint("Vertical", 10))
sketch6.addConstraint(Sketcher.Constraint("Horizontal", 11))
sketch6.addConstraint(Sketcher.Constraint("Vertical", 12))
sketch6.addConstraint(Sketcher.Constraint("Horizontal", 13))
sketch6.addConstraint(Sketcher.Constraint("Vertical", 14))
sketch6.addConstraint(Sketcher.Constraint("Horizontal", 15))
sketch6.addConstraint(Sketcher.Constraint("Vertical", 16))
sketch6.addConstraint(Sketcher.Constraint("Horizontal", 17))
sketch6.addConstraint(Sketcher.Constraint("Vertical", 18))
sketch6.addConstraint(Sketcher.Constraint("Horizontal", 19))
sketch6.addConstraint(Sketcher.Constraint("Vertical", 20))
sketch6.addConstraint(Sketcher.Constraint("Horizontal", 21))
sketch6.addConstraint(Sketcher.Constraint("Vertical", 22))
sketch6.addConstraint(Sketcher.Constraint("Horizontal", 23))
sketch6.addConstraint(Sketcher.Constraint("Vertical", 24))
sketch6.addConstraint(Sketcher.Constraint("Horizontal", 25))
sketch6.addConstraint(Sketcher.Constraint("Vertical", 26))
sketch6.addConstraint(Sketcher.Constraint("Horizontal", 27))
sketch6.addConstraint(Sketcher.Constraint("Vertical", 28))
sketch6.addConstraint(Sketcher.Constraint("Horizontal", 29))
sketch6.addConstraint(Sketcher.Constraint("Vertical", 30))
sketch6.addConstraint(Sketcher.Constraint("Horizontal", 31))
sketch6.addConstraint(Sketcher.Constraint("Vertical", 32))
sketch6.addConstraint(Sketcher.Constraint("Horizontal", 33))
sketch6.addConstraint(Sketcher.Constraint("Vertical", 34))
sketch6.addConstraint(Sketcher.Constraint("Horizontal", 35))
sketch6.addConstraint(Sketcher.Constraint("Horizontal", 1, 2, 4, 2))
sketch6.addConstraint(Sketcher.Constraint("Horizontal", 3, 2, 6, 2))
sketch6.addConstraint(Sketcher.Constraint("Horizontal", 5, 2, 8, 2))
sketch6.addConstraint(Sketcher.Constraint("Horizontal", 7, 2, 10, 2))
sketch6.addConstraint(Sketcher.Constraint("Horizontal", 13, 2, 16, 2))
sketch6.addConstraint(Sketcher.Constraint("Horizontal", 15, 2, 18, 2))
sketch6.addConstraint(Sketcher.Constraint("Horizontal", 17, 2, 20, 2))
sketch6.addConstraint(Sketcher.Constraint("Horizontal", 19, 2, 22, 2))
sketch6.addConstraint(Sketcher.Constraint("Horizontal", 25, 2, 28, 2))
sketch6.addConstraint(Sketcher.Constraint("Horizontal", 27, 2, 30, 2))
sketch6.addConstraint(Sketcher.Constraint("Horizontal", 29, 2, 32, 2))
sketch6.addConstraint(Sketcher.Constraint("Horizontal", 31, 2, 34, 2))
sketch6.addConstraint(Sketcher.Constraint("Vertical", 3, 2, 12, 2))
sketch6.addConstraint(Sketcher.Constraint("Vertical", 2, 2, 13, 2))
sketch6.addConstraint(Sketcher.Constraint("Vertical", 7, 2, 16, 2))
sketch6.addConstraint(Sketcher.Constraint("Vertical", 6, 2, 17, 2))
sketch6.addConstraint(Sketcher.Constraint("Vertical", 11, 2, 20, 2))
sketch6.addConstraint(Sketcher.Constraint("Vertical", 10, 2, 21, 2))
sketch6.addConstraint(Sketcher.Constraint("Vertical", 23, 2, 24, 2))
sketch6.addConstraint(Sketcher.Constraint("Vertical", 22, 2, 25, 2))
sketch6.addConstraint(Sketcher.Constraint("Vertical", 19, 2, 28, 2))
sketch6.addConstraint(Sketcher.Constraint("Vertical", 18, 2, 29, 2))
sketch6.addConstraint(Sketcher.Constraint("Vertical", 15, 2, 32, 2))
sketch6.addConstraint(Sketcher.Constraint("Vertical", 14, 2, 33, 2))
sketch6.addConstraint(Sketcher.Constraint("Equal", 3, 5))
sketch6.addConstraint(Sketcher.Constraint("Equal", 7, 9))
sketch6.addConstraint(Sketcher.Constraint("Equal", 10, 12))
sketch6.addConstraint(Sketcher.Constraint("Equal", 22, 24))
sketch6.addConstraint(Sketcher.Constraint("DistanceX", 1, 2, 1, 1, Q("1.875 in")))
sketch6.addConstraint(Sketcher.Constraint("DistanceY", 0, 2, 0, 1, Q("0.875 in")))
sketch6.addConstraint(Sketcher.Constraint("DistanceX", 4, 2, 1, 2, Q("2.84375 in")))
sketch6.addConstraint(Sketcher.Constraint("DistanceX", 8, 2, 5, 2, Q("2.84375 in")))
sketch6.addConstraint(Sketcher.Constraint("DistanceY", 12, 2, 0, 2, Q("4.71875 in")))
sketch6.addConstraint(Sketcher.Constraint("DistanceY", 24, 2, 20, 2, Q("4.71875 in")))
sketch6.addConstraint(Sketcher.Constraint("DistanceY", -1, 1, 0, 2, Q("100.424018 mm")))
sketch6.addConstraint(Sketcher.Constraint("DistanceX", 0, 2, -1, 1, Q("340.263835 mm")))
pocket4 = doc.addObject("PartDesign::Pocket", "Pocket003")
body2.addObject(pocket4)
pocket4.Profile = sketch6
pocket4.Length = Q("0.125 in")
pocket4.Reversed = True

doc.recompute()
